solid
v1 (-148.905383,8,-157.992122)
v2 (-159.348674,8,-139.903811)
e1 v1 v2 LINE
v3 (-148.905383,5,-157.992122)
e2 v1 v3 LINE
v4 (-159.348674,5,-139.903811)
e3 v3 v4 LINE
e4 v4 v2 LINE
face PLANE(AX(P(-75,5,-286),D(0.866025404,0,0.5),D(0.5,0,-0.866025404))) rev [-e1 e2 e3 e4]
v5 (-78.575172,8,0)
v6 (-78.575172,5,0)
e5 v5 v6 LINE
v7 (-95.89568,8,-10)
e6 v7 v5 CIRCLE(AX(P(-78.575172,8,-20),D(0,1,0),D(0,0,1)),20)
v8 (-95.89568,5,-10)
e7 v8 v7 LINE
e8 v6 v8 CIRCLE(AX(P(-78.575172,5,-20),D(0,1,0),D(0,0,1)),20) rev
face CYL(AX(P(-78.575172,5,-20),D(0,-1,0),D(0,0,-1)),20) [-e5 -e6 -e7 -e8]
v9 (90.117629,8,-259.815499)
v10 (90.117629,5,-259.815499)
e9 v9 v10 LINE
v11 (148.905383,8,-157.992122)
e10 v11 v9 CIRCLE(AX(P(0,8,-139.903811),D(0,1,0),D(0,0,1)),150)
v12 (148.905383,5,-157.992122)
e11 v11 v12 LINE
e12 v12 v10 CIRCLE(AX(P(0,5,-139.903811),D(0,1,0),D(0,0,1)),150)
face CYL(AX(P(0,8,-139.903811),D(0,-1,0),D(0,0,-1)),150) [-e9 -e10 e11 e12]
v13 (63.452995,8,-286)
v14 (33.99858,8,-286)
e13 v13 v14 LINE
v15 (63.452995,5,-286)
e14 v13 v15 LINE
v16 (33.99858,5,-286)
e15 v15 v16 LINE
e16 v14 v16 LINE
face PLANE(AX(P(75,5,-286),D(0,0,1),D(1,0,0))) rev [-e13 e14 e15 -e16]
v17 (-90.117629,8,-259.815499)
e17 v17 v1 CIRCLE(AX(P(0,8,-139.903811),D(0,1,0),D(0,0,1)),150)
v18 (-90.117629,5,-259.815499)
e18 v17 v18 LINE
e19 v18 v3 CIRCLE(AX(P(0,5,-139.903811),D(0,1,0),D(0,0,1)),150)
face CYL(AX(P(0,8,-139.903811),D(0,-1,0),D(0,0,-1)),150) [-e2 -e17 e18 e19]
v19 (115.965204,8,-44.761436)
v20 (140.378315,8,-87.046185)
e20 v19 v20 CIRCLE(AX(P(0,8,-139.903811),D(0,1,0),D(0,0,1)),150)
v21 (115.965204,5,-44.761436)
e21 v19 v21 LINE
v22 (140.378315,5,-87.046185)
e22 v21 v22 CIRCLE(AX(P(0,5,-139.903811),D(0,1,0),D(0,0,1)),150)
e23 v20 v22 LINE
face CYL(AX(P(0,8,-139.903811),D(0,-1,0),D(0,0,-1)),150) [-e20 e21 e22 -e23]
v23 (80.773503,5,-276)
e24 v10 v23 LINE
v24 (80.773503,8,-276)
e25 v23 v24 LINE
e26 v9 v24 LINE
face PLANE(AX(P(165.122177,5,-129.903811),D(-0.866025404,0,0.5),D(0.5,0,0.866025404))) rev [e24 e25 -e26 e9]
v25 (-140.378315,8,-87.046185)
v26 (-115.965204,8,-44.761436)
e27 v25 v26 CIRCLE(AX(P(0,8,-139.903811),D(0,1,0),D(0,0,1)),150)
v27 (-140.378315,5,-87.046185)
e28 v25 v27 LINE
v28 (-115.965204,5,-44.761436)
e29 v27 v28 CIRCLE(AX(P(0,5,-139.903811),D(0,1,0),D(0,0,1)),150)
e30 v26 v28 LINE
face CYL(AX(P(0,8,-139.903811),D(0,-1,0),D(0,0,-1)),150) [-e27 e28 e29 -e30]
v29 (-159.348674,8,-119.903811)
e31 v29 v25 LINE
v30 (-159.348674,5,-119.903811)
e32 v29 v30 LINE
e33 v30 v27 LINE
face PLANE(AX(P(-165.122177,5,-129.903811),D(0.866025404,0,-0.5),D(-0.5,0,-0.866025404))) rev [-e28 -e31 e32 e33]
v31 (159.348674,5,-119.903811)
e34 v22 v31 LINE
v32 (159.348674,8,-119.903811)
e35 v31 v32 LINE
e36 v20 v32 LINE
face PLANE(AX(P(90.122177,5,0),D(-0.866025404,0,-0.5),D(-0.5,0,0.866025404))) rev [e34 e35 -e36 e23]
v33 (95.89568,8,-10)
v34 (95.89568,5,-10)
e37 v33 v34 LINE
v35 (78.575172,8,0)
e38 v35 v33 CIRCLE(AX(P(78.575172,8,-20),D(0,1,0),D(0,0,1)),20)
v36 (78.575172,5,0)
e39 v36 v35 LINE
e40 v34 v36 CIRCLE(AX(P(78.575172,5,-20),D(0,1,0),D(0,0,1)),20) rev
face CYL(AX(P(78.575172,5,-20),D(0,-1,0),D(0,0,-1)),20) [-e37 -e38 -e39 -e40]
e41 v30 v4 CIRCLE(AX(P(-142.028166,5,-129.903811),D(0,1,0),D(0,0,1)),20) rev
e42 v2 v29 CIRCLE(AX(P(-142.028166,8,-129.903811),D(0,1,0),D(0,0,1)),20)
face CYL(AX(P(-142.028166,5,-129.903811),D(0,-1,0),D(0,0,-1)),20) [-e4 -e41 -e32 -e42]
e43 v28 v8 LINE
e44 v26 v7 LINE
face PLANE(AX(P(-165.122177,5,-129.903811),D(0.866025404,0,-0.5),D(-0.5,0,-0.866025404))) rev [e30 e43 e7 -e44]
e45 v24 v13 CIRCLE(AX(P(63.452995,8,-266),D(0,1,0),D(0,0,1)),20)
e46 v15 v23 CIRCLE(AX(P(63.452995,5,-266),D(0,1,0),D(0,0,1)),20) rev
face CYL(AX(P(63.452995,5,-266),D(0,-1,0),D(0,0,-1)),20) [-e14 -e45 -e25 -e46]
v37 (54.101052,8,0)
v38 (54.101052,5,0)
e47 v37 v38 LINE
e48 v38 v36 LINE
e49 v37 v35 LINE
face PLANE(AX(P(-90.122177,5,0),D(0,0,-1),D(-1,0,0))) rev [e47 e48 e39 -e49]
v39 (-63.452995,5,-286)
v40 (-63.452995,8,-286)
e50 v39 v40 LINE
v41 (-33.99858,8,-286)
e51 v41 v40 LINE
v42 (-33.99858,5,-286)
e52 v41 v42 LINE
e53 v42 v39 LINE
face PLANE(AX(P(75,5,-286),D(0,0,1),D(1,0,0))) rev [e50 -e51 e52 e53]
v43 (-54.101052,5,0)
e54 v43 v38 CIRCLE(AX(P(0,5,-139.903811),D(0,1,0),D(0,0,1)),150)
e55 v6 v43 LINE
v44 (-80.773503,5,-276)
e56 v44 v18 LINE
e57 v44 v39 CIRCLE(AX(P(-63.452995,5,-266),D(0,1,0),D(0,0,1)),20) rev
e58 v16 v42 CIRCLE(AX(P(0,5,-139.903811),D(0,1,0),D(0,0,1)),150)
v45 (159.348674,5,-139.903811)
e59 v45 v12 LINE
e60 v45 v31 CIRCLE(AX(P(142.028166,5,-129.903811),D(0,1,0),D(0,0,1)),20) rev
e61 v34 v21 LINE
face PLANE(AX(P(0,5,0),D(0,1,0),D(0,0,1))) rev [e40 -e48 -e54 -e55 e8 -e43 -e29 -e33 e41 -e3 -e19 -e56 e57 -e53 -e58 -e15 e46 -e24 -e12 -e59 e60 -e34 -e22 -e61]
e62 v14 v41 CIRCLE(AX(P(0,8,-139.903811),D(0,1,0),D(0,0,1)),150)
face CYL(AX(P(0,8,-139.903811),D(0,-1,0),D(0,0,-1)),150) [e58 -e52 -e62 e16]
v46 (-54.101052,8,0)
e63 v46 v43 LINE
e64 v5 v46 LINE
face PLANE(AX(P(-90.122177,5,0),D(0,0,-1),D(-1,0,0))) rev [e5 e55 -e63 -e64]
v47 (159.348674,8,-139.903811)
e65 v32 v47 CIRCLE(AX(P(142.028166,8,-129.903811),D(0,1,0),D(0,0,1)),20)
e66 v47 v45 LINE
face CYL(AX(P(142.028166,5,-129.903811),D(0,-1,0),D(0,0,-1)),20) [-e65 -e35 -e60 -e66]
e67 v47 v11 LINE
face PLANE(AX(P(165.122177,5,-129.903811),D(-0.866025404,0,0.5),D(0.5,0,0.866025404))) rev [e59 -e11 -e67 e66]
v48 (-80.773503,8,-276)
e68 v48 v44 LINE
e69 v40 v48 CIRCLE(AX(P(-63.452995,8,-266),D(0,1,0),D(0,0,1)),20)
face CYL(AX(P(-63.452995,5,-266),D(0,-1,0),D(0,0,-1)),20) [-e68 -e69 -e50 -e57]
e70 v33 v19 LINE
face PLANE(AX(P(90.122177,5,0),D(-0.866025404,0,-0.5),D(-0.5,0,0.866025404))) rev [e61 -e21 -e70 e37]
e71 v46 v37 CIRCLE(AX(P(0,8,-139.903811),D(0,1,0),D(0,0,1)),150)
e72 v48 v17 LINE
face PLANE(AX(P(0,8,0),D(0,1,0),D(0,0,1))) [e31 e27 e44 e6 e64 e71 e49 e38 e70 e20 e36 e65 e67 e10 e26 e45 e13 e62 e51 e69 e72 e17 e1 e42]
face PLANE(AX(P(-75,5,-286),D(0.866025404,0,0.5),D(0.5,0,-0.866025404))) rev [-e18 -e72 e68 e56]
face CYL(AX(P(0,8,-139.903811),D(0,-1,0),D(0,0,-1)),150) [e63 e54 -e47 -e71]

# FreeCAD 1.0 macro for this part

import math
import FreeCAD as App
import Part
import Sketcher
Q = App.Units.Quantity


def edges_at(feature, points):
    """Names of the edges that pass closest to the given points."""
    edges = feature.Shape.Edges
    near = lambda p: min(range(len(edges)), key=lambda i: edges[i].distToShape(Part.Vertex(*p))[0])
    return sorted({f"Edge{near(p) + 1}" for p in points})


def add_polygon(sketch, points):
    """Adds a closed chain of lines whose ends are joined by coincident constraints."""
    first, n = sketch.GeometryCount, len(points)
    for a, b in zip(points, points[1:] + points[:1]):
        sketch.addGeometry(Part.LineSegment(App.Vector(*a, 0), App.Vector(*b, 0)), False)
    for i in range(n):
        sketch.addConstraint(Sketcher.Constraint("Coincident", first + i, 2, first + (i + 1) % n, 1))

doc = App.newDocument("Part")
body = doc.addObject("PartDesign::Body", "Body")

# Sketch on XZ plane
sketch1 = doc.addObject("Sketcher::SketchObject", "Sketch")
body.addObject(sketch1)
sketch1.AttachmentSupport = (doc.XZ_Plane, [""])
sketch1.MapMode = "FlatFace"
add_polygon(sketch1, [(-90, 0), (90, 0), (165, -130), (75, -286), (-75, -286), (-165, -130)])  # lines 0-5
sketch1.addConstraint([
    Sketcher.Constraint("Horizontal", 0),
    Sketcher.Constraint("Horizontal", 3),
    Sketcher.Constraint("Symmetric", 0, 2, 5, 2, -1, 1),
    Sketcher.Constraint("Symmetric", 1, 2, 4, 2, -2),
    Sketcher.Constraint("Parallel", 1, 4),
    Sketcher.Constraint("Parallel", 2, 5),
    Sketcher.Constraint("DistanceX", 3, 2, 3, 1, Q("150 mm")),
    Sketcher.Constraint("Angle", 1, Q("-60 deg")),
    Sketcher.Constraint("Distance", 1, Q("150 mm")),
    Sketcher.Constraint("DistanceY", 2, 2, -1, 1, Q("286 mm")),
])
pad1 = doc.addObject("PartDesign::Pad", "Pad")
body.addObject(pad1)
pad1.Profile = sketch1
pad1.Length = 5
pad1.Reversed = True
doc.recompute()

fillet = doc.addObject("PartDesign::Fillet", "Fillet")
body.addObject(fillet)
fillet.Base = (pad1, edges_at(pad1, [
    (-165.122, 2.5, -129.904),
    (-75, 2.5, -286),
    (75, 2.5, -286),
    (165.122, 2.5, -129.904),
    (90.122, 2.5, 0),
    (-90.122, 2.5, 0),
]))
fillet.Radius = 20

# Sketch on XZ plane
sketch2 = doc.addObject("Sketcher::SketchObject", "Sketch001")
body.addObject(sketch2)
sketch2.AttachmentSupport = (doc.XZ_Plane, [""])
sketch2.MapMode = "FlatFace"
sketch2.AttachmentOffset = App.Placement(App.Vector(0, 0, -8), App.Rotation())
sketch2.addGeometry([
    Part.LineSegment(App.Vector(-159, -120, 0), App.Vector(-140, -87, 0)),  # 0
    Part.ArcOfCircle(Part.Circle(App.Vector(0, -140, 0), App.Vector(0, 0, 1), 150), math.radians(140.63), math.radians(159.37)),  # 1
    Part.LineSegment(App.Vector(-116, -45, 0), App.Vector(-96, -10, 0)),  # 2
    Part.ArcOfCircle(Part.Circle(App.Vector(-79, -20, 0), App.Vector(0, 0, 1), 20), math.radians(90), math.radians(150)),  # 3
    Part.LineSegment(App.Vector(-79, 0, 0), App.Vector(-54, 0, 0)),  # 4
    Part.ArcOfCircle(Part.Circle(App.Vector(0, -140, 0), App.Vector(0, 0, 1), 150), math.radians(69), math.radians(111)),  # 5
    Part.LineSegment(App.Vector(54, 0, 0), App.Vector(79, 0, 0)),  # 6
    Part.ArcOfCircle(Part.Circle(App.Vector(79, -20, 0), App.Vector(0, 0, 1), 20), math.radians(30), math.radians(90)),  # 7
    Part.LineSegment(App.Vector(96, -10, 0), App.Vector(116, -45, 0)),  # 8
    Part.ArcOfCircle(Part.Circle(App.Vector(0, -140, 0), App.Vector(0, 0, 1), 150), math.radians(20.63), math.radians(39.37)),  # 9
    Part.LineSegment(App.Vector(140, -87, 0), App.Vector(159, -120, 0)),  # 10
    Part.ArcOfCircle(Part.Circle(App.Vector(142, -130, 0), App.Vector(0, 0, 1), 20), math.radians(-30), math.radians(30)),  # 11
    Part.LineSegment(App.Vector(159, -140, 0), App.Vector(149, -158, 0)),  # 12
    Part.ArcOfCircle(Part.Circle(App.Vector(0, -140, 0), App.Vector(0, 0, 1), 150), math.radians(-53), math.radians(-7)),  # 13
    Part.LineSegment(App.Vector(90, -260, 0), App.Vector(81, -276, 0)),  # 14
    Part.ArcOfCircle(Part.Circle(App.Vector(63, -266, 0), App.Vector(0, 0, 1), 20), math.radians(-90), math.radians(-30)),  # 15
    Part.LineSegment(App.Vector(63, -286, 0), App.Vector(34, -286, 0)),  # 16
    Part.ArcOfCircle(Part.Circle(App.Vector(0, -140, 0), App.Vector(0, 0, 1), 150), math.radians(-103), math.radians(-77)),  # 17
    Part.LineSegment(App.Vector(-34, -286, 0), App.Vector(-63, -286, 0)),  # 18
    Part.ArcOfCircle(Part.Circle(App.Vector(-63, -266, 0), App.Vector(0, 0, 1), 20), math.radians(-150), math.radians(-90)),  # 19
    Part.LineSegment(App.Vector(-81, -276, 0), App.Vector(-90, -260, 0)),  # 20
    Part.ArcOfCircle(Part.Circle(App.Vector(0, -140, 0), App.Vector(0, 0, 1), 150), math.radians(-173), math.radians(-127)),  # 21
    Part.LineSegment(App.Vector(-149, -158, 0), App.Vector(-159, -140, 0)),  # 22
    Part.ArcOfCircle(Part.Circle(App.Vector(-142, -130, 0), App.Vector(0, 0, 1), 20), math.radians(150), math.radians(210)),  # 23
], False)
sketch2.addConstraint([
    Sketcher.Constraint("Coincident", 0, 2, 1, 2),
    Sketcher.Constraint("Coincident", 1, 1, 2, 1),
    Sketcher.Constraint("Tangent", 2, 2, 3, 2),
    Sketcher.Constraint("Tangent", 3, 1, 4, 1),
    Sketcher.Constraint("Coincident", 4, 2, 5, 2),
    Sketcher.Constraint("Coincident", 5, 1, 6, 1),
    Sketcher.Constraint("Tangent", 6, 2, 7, 2),
    Sketcher.Constraint("Tangent", 7, 1, 8, 1),
    Sketcher.Constraint("Coincident", 8, 2, 9, 2),
    Sketcher.Constraint("Coincident", 9, 1, 10, 1),
    Sketcher.Constraint("Tangent", 10, 2, 11, 2),
    Sketcher.Constraint("Tangent", 11, 1, 12, 1),
    Sketcher.Constraint("Coincident", 12, 2, 13, 2),
    Sketcher.Constraint("Coincident", 13, 1, 14, 1),
    Sketcher.Constraint("Tangent", 14, 2, 15, 2),
    Sketcher.Constraint("Tangent", 15, 1, 16, 1),
    Sketcher.Constraint("Coincident", 16, 2, 17, 2),
    Sketcher.Constraint("Coincident", 17, 1, 18, 1),
    Sketcher.Constraint("Tangent", 18, 2, 19, 2),
    Sketcher.Constraint("Tangent", 19, 1, 20, 1),
    Sketcher.Constraint("Coincident", 20, 2, 21, 2),
    Sketcher.Constraint("Coincident", 21, 1, 22, 1),
    Sketcher.Constraint("Tangent", 22, 2, 23, 2),
    Sketcher.Constraint("Tangent", 23, 1, 0, 1),
    Sketcher.Constraint("Horizontal", 4),
    Sketcher.Constraint("Horizontal", 6),
    Sketcher.Constraint("Horizontal", 16),
    Sketcher.Constraint("Horizontal", 18),
    Sketcher.Constraint("Coincident", 5, 3, 1, 3),
    Sketcher.Constraint("Coincident", 9, 3, 1, 3),
    Sketcher.Constraint("Coincident", 13, 3, 1, 3),
    Sketcher.Constraint("Coincident", 17, 3, 1, 3),
    Sketcher.Constraint("Coincident", 21, 3, 1, 3),
    Sketcher.Constraint("Equal", 1, 5),
    Sketcher.Constraint("Equal", 3, 7),
    Sketcher.Constraint("Equal", 5, 9),
    Sketcher.Constraint("Equal", 7, 11),
    Sketcher.Constraint("Equal", 9, 13),
    Sketcher.Constraint("Equal", 11, 15),
    Sketcher.Constraint("Equal", 13, 17),
    Sketcher.Constraint("Equal", 15, 19),
    Sketcher.Constraint("Equal", 17, 21),
    Sketcher.Constraint("Equal", 19, 23),
    Sketcher.Constraint("Symmetric", 4, 2, 5, 1, -1, 1),
    Sketcher.Constraint("Symmetric", 3, 3, 7, 3, -2),
    Sketcher.Constraint("Symmetric", 15, 3, 19, 3, -2),
    Sketcher.Constraint("Symmetric", 11, 3, 23, 3, -2),
    Sketcher.Constraint("Parallel", 0, 2),
    Sketcher.Constraint("Parallel", 8, 10),
    Sketcher.Constraint("Parallel", 2, 12),
    Sketcher.Constraint("Parallel", 12, 14),
    Sketcher.Constraint("Parallel", 10, 20),
    Sketcher.Constraint("Parallel", 20, 22),
    Sketcher.Constraint("Horizontal", 2, 2, 7, 1),
    Sketcher.Constraint("Horizontal", 21, 3, 11, 1),
    Sketcher.Constraint("Radius", 1, Q("150 mm")),
    Sketcher.Constraint("Radius", 3, Q("20 mm")),
    Sketcher.Constraint("Angle", 0, Q("60 deg")),
    Sketcher.Constraint("DistanceY", 15, 3, -1, 1, Q("266 mm")),
    Sketcher.Constraint("DistanceX", 4, 1, 4, 2, Q("24.47412 mm")),
    Sketcher.Constraint("DistanceY", 13, 1, -1, 1, Q("259.815499 mm")),
    Sketcher.Constraint("Distance", 2, Q("40.139049 mm")),
    Sketcher.Constraint("DistanceX", 15, 3, 11, 3, Q("78.575172 mm")),
])
pad2 = doc.addObject("PartDesign::Pad", "Pad001")
body.addObject(pad2)
pad2.Profile = sketch2
pad2.Length = 3

# Sketch on XZ plane
sketch3 = doc.addObject("Sketcher::SketchObject", "Sketch002")
body.addObject(sketch3)
sketch3.AttachmentSupport = (doc.XZ_Plane, [""])
sketch3.MapMode = "FlatFace"
sketch3.AttachmentOffset = App.Placement(App.Vector(0, 0, -5), App.Rotation())
add_polygon(sketch3, [(-211, 33), (-211, -310), (213, -310), (213, 33)])  # lines 0-3
sketch3.addConstraint([
    Sketcher.Constraint("Vertical", 0),
    Sketcher.Constraint("Horizontal", 1),
    Sketcher.Constraint("Vertical", 2),
    Sketcher.Constraint("Horizontal", 3),
    Sketcher.Constraint("DistanceX", 1, 1, 1, 2, Q("424.898908 mm")),
    Sketcher.Constraint("DistanceY", 0, 2, 0, 1, Q("342.867143 mm")),
    Sketcher.Constraint("DistanceX", 0, 2, -1, 1, Q("211.488144 mm")),
    Sketcher.Constraint("DistanceY", 0, 2, -1, 1, Q("310.055636 mm")),
])
pocket1 = doc.addObject("PartDesign::Pocket", "Pocket")
body.addObject(pocket1)
pocket1.Profile = sketch3
pocket1.Length = 13
pocket1.Reversed = True

doc.recompute()
